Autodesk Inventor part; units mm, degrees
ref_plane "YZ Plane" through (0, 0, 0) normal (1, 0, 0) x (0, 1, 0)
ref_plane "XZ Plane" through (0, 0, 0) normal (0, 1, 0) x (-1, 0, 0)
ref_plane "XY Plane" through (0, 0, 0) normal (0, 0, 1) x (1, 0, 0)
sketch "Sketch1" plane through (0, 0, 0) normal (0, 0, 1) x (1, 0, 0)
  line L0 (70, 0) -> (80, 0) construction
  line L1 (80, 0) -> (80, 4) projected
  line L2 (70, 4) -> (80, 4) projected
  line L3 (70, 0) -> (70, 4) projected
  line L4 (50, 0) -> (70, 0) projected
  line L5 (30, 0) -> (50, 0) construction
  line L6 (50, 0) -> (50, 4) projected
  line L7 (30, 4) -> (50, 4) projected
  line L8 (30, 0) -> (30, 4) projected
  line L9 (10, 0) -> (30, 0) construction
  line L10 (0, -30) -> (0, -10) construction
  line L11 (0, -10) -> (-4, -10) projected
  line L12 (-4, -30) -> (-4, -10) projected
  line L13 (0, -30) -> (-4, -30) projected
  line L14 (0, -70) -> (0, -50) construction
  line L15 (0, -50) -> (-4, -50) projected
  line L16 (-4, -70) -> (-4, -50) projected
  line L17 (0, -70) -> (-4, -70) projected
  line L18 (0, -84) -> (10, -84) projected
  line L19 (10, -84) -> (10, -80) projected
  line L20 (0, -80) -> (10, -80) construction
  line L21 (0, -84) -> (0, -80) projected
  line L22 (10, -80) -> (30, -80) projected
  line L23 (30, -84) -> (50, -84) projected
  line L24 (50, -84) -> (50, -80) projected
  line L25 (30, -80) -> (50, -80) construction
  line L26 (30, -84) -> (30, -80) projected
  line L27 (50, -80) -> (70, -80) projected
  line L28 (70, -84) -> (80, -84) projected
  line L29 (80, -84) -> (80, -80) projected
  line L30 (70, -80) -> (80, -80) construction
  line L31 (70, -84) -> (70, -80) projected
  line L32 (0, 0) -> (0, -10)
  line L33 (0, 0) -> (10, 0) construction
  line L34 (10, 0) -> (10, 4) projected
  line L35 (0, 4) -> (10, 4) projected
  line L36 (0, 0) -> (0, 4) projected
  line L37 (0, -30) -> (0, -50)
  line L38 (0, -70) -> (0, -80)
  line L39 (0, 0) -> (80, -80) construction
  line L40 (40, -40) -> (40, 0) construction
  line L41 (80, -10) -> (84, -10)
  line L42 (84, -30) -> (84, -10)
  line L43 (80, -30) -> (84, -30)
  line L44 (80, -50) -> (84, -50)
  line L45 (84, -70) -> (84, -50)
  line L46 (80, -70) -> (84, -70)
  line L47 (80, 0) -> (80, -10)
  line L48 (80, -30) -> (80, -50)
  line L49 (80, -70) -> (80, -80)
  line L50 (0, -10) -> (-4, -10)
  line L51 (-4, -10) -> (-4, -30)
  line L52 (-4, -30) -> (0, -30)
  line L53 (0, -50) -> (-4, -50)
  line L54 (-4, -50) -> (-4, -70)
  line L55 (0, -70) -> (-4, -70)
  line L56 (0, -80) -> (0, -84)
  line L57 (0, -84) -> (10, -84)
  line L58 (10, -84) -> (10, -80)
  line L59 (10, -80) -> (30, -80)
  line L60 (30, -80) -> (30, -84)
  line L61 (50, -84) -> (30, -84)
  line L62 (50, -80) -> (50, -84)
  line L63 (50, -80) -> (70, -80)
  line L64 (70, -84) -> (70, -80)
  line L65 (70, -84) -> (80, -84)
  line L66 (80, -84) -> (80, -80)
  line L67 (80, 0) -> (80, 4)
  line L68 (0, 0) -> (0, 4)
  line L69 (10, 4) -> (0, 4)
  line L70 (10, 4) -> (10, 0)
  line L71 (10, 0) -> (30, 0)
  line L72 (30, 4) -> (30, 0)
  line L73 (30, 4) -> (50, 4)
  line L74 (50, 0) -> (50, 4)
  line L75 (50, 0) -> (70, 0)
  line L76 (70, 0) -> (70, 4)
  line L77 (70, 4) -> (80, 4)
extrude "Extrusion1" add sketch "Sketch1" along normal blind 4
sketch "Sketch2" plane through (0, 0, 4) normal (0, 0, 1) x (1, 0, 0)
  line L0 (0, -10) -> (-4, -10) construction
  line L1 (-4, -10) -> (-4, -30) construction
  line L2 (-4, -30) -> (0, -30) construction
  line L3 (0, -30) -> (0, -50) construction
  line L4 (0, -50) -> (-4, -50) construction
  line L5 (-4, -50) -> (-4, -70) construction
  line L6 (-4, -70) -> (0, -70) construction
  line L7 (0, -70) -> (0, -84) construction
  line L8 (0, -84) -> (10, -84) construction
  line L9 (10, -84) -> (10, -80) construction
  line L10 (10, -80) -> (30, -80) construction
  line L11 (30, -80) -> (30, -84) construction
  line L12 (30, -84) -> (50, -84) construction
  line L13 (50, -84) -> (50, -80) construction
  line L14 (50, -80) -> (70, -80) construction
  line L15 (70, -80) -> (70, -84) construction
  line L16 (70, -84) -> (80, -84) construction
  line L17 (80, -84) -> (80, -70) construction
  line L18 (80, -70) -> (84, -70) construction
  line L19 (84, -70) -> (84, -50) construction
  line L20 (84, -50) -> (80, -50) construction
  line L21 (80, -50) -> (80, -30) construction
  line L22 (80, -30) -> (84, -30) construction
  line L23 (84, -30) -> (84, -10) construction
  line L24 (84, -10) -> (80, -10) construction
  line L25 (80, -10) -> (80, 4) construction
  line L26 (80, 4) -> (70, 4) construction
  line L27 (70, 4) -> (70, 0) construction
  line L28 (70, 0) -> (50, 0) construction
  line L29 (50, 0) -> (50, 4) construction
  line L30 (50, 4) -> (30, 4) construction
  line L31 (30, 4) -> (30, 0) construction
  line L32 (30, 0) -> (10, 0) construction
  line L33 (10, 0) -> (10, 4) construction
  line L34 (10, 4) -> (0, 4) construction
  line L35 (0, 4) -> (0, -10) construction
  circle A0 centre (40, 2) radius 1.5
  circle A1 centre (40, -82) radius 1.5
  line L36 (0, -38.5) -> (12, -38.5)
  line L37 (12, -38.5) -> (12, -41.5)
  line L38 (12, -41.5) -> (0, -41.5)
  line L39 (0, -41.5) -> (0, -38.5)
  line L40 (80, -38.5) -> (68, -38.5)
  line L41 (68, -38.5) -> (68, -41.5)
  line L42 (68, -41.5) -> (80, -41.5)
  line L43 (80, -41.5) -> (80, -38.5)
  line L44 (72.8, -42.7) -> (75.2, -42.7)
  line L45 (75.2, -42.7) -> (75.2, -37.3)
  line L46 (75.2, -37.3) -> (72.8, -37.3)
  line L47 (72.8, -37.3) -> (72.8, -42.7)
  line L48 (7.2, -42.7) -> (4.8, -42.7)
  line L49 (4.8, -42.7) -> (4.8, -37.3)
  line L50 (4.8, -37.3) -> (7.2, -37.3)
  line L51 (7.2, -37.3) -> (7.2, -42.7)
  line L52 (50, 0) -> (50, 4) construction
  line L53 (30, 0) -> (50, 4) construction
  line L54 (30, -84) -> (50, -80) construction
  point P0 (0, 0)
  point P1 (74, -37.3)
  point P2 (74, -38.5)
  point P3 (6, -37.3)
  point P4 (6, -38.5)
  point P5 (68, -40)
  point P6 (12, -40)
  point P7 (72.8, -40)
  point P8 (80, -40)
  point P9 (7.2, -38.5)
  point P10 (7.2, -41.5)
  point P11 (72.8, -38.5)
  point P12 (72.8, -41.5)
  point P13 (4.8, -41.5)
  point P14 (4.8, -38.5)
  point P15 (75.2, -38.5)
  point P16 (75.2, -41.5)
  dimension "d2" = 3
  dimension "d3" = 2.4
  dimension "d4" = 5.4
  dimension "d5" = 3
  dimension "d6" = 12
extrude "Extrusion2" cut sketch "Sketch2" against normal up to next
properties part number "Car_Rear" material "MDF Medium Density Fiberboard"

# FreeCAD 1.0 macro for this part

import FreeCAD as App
import Part
import Sketcher


def add_polygon(sketch, points):
    """Adds a closed chain of lines whose ends are joined by coincident constraints."""
    first, n = sketch.GeometryCount, len(points)
    for a, b in zip(points, points[1:] + points[:1]):
        sketch.addGeometry(Part.LineSegment(App.Vector(*a, 0), App.Vector(*b, 0)), False)
    for i in range(n):
        sketch.addConstraint(Sketcher.Constraint("Coincident", first + i, 2, first + (i + 1) % n, 1))

doc = App.newDocument("Part")
params = doc.addObject("Spreadsheet::Sheet", "Params")
for row, (alias, value) in enumerate([
    ("sketch1_width", "10 mm"),
    ("sketch1_width2", "20 mm"),
    ("sketch1_width3", "4 mm"),
    ("sketch1_height", "14 mm"),
    ("pad1_length", "4 mm"),
    ("sketch2_diameter", "3 mm"),
    ("sketch2_height", "3 mm"),
    ("sketch2_width", "2.4 mm"),
], start=1):
    params.set(f"A{row}", alias)
    params.set(f"B{row}", "=" + value)
    params.setAlias(f"B{row}", alias)

body = doc.addObject("PartDesign::Body", "Body")

sketch1 = body.newObject("Sketcher::SketchObject", "Sketch")
sketch1.AttachmentSupport = (doc.getObject("XY_Plane"), [""])
sketch1.MapMode = "FlatFace"
add_polygon(sketch1, [(80, -10), (80, 4), (70, 4), (70, 0), (50, 0), (50, 4), (30, 4), (30, 0), (10, 0), (10, 4), (0, 4), (0, -10), (-4, -10), (-4, -30), (0, -30), (0, -50), (-4, -50), (-4, -70), (0, -70), (0, -84), (10, -84), (10, -80), (30, -80), (30, -84), (50, -84), (50, -80), (70, -80), (70, -84), (80, -84), (80, -70), (84, -70), (84, -50), (80, -50), (80, -30), (84, -30), (84, -10)])
sketch1.addConstraint(Sketcher.Constraint("Vertical", 0))
sketch1.addConstraint(Sketcher.Constraint("Horizontal", 1))
sketch1.addConstraint(Sketcher.Constraint("Vertical", 2))
sketch1.addConstraint(Sketcher.Constraint("Horizontal", 3))
sketch1.addConstraint(Sketcher.Constraint("Vertical", 4))
sketch1.addConstraint(Sketcher.Constraint("Horizontal", 5))
sketch1.addConstraint(Sketcher.Constraint("Vertical", 6))
sketch1.addConstraint(Sketcher.Constraint("Horizontal", 7))
sketch1.addConstraint(Sketcher.Constraint("Vertical", 8))
sketch1.addConstraint(Sketcher.Constraint("Horizontal", 9))
sketch1.addConstraint(Sketcher.Constraint("Vertical", 10))
sketch1.addConstraint(Sketcher.Constraint("Horizontal", 11))
sketch1.addConstraint(Sketcher.Constraint("Vertical", 12))
sketch1.addConstraint(Sketcher.Constraint("Horizontal", 13))
sketch1.addConstraint(Sketcher.Constraint("Vertical", 14))
sketch1.addConstraint(Sketcher.Constraint("Horizontal", 15))
sketch1.addConstraint(Sketcher.Constraint("Vertical", 16))
sketch1.addConstraint(Sketcher.Constraint("Horizontal", 17))
sketch1.addConstraint(Sketcher.Constraint("Vertical", 18))
sketch1.addConstraint(Sketcher.Constraint("Horizontal", 19))
sketch1.addConstraint(Sketcher.Constraint("Vertical", 20))
sketch1.addConstraint(Sketcher.Constraint("Horizontal", 21))
sketch1.addConstraint(Sketcher.Constraint("Vertical", 22))
sketch1.addConstraint(Sketcher.Constraint("Horizontal", 23))
sketch1.addConstraint(Sketcher.Constraint("Vertical", 24))
sketch1.addConstraint(Sketcher.Constraint("Horizontal", 25))
sketch1.addConstraint(Sketcher.Constraint("Vertical", 26))
sketch1.addConstraint(Sketcher.Constraint("Horizontal", 27))
sketch1.addConstraint(Sketcher.Constraint("Vertical", 28))
sketch1.addConstraint(Sketcher.Constraint("Horizontal", 29))
sketch1.addConstraint(Sketcher.Constraint("Vertical", 30))
sketch1.addConstraint(Sketcher.Constraint("Horizontal", 31))
sketch1.addConstraint(Sketcher.Constraint("Vertical", 32))
sketch1.addConstraint(Sketcher.Constraint("Horizontal", 33))
sketch1.addConstraint(Sketcher.Constraint("Vertical", 34))
sketch1.addConstraint(Sketcher.Constraint("Horizontal", 35))
sketch1.addConstraint(Sketcher.Constraint("PointOnObject", 2, 2, -1))
sketch1.addConstraint(Sketcher.Constraint("PointOnObject", 6, 2, -1))
sketch1.addConstraint(Sketcher.Constraint("PointOnObject", 9, 2, -2))
sketch1.addConstraint(Sketcher.Constraint("PointOnObject", 13, 2, -2))
sketch1.addConstraint(Sketcher.Constraint("PointOnObject", 17, 2, -2))
sketch1.addConstraint(Sketcher.Constraint("Horizontal", 1, 2, 4, 2))
sketch1.addConstraint(Sketcher.Constraint("Horizontal", 5, 2, 8, 2))
sketch1.addConstraint(Sketcher.Constraint("Horizontal", 19, 2, 22, 2))
sketch1.addConstraint(Sketcher.Constraint("Horizontal", 21, 2, 24, 2))
sketch1.addConstraint(Sketcher.Constraint("Horizontal", 23, 2, 26, 2))
sketch1.addConstraint(Sketcher.Constraint("Horizontal", 17, 2, 28, 2))
sketch1.addConstraint(Sketcher.Constraint("Horizontal", 15, 2, 30, 2))
sketch1.addConstraint(Sketcher.Constraint("Horizontal", 13, 2, 32, 2))
sketch1.addConstraint(Sketcher.Constraint("Horizontal", 11, 2, 34, 2))
sketch1.addConstraint(Sketcher.Constraint("Vertical", 12, 2, 15, 2))
sketch1.addConstraint(Sketcher.Constraint("Vertical", 8, 2, 19, 2))
sketch1.addConstraint(Sketcher.Constraint("Vertical", 6, 2, 21, 2))
sketch1.addConstraint(Sketcher.Constraint("Vertical", 4, 2, 23, 2))
sketch1.addConstraint(Sketcher.Constraint("Vertical", 2, 2, 25, 2))
sketch1.addConstraint(Sketcher.Constraint("Vertical", 0, 2, 27, 2))
sketch1.addConstraint(Sketcher.Constraint("Vertical", 28, 2, 31, 2))
sketch1.addConstraint(Sketcher.Constraint("Vertical", 30, 2, 33, 2))
sketch1.addConstraint(Sketcher.Constraint("Equal", 3, 5))
sketch1.addConstraint(Sketcher.Constraint("Equal", 5, 7))
sketch1.addConstraint(Sketcher.Constraint("Equal", 1, 9))
sketch1.addConstraint(Sketcher.Constraint("Equal", 17, 29))
sketch1.addConstraint(Sketcher.Constraint("Equal", 35, 2))
sketch1.addConstraint(Sketcher.Constraint("Equal", 25, 12))
sketch1.addConstraint(Sketcher.Constraint("Equal", 12, 14))
sketch1.addConstraint(Sketcher.Constraint("Equal", 14, 16))
sketch1.addConstraint(Sketcher.Constraint("Equal", 10, 18))
sketch1.addConstraint(Sketcher.Constraint("Equal", 8, 20))
sketch1.addConstraint(Sketcher.Constraint("DistanceX", 1, 2, 1, 1, 10.0))
sketch1.addConstraint(Sketcher.Constraint("DistanceX", 3, 2, 3, 1, 20.0))
sketch1.addConstraint(Sketcher.Constraint("DistanceX", 11, 2, 11, 1, 4.0))
sketch1.addConstraint(Sketcher.Constraint("DistanceY", 0, 1, 0, 2, 14.0))
sketch1.setExpression("Constraints[104]", "Params.sketch1_width")
sketch1.setExpression("Constraints[105]", "Params.sketch1_width2")
sketch1.setExpression("Constraints[106]", "Params.sketch1_width3")
sketch1.setExpression("Constraints[107]", "Params.sketch1_height")
pad1 = body.newObject("PartDesign::Pad", "Pad")
pad1.Profile = sketch1
pad1.setExpression("Length", "Params.pad1_length")

sketch2 = body.newObject("Sketcher::SketchObject", "Sketch001")
sketch2.AttachmentSupport = (doc.getObject("XY_Plane"), [""])
sketch2.MapMode = "FlatFace"
sketch2.AttachmentOffset = App.Placement(App.Vector(0, 0, 4), App.Rotation())
sketch2.addGeometry(Part.Circle(App.Vector(40, 2, 0), App.Vector(0, 0, 1), 1.5), False)
sketch2.addGeometry(Part.Circle(App.Vector(40, -82, 0), App.Vector(0, 0, 1), 1.5), False)
add_polygon(sketch2, [(4.8, -38.5), (0, -38.5), (0, -41.5), (4.8, -41.5), (4.8, -42.7), (7.2, -42.7), (7.2, -41.5), (12, -41.5), (12, -38.5), (7.2, -38.5), (7.2, -37.3), (4.8, -37.3)])
add_polygon(sketch2, [(80, -41.5), (80, -38.5), (75.2, -38.5), (75.2, -37.3), (72.8, -37.3), (72.8, -38.5), (68, -38.5), (68, -41.5), (72.8, -41.5), (72.8, -42.7), (75.2, -42.7), (75.2, -41.5)])
sketch2.addConstraint(Sketcher.Constraint("Horizontal", 2))
sketch2.addConstraint(Sketcher.Constraint("Vertical", 3))
sketch2.addConstraint(Sketcher.Constraint("Horizontal", 4))
sketch2.addConstraint(Sketcher.Constraint("Vertical", 5))
sketch2.addConstraint(Sketcher.Constraint("Horizontal", 6))
sketch2.addConstraint(Sketcher.Constraint("Vertical", 7))
sketch2.addConstraint(Sketcher.Constraint("Horizontal", 8))
sketch2.addConstraint(Sketcher.Constraint("Vertical", 9))
sketch2.addConstraint(Sketcher.Constraint("Horizontal", 10))
sketch2.addConstraint(Sketcher.Constraint("Vertical", 11))
sketch2.addConstraint(Sketcher.Constraint("Horizontal", 12))
sketch2.addConstraint(Sketcher.Constraint("Vertical", 13))
sketch2.addConstraint(Sketcher.Constraint("Vertical", 14))
sketch2.addConstraint(Sketcher.Constraint("Horizontal", 15))
sketch2.addConstraint(Sketcher.Constraint("Vertical", 16))
sketch2.addConstraint(Sketcher.Constraint("Horizontal", 17))
sketch2.addConstraint(Sketcher.Constraint("Vertical", 18))
sketch2.addConstraint(Sketcher.Constraint("Horizontal", 19))
sketch2.addConstraint(Sketcher.Constraint("Vertical", 20))
sketch2.addConstraint(Sketcher.Constraint("Horizontal", 21))
sketch2.addConstraint(Sketcher.Constraint("Vertical", 22))
sketch2.addConstraint(Sketcher.Constraint("Horizontal", 23))
sketch2.addConstraint(Sketcher.Constraint("Vertical", 24))
sketch2.addConstraint(Sketcher.Constraint("Horizontal", 25))
sketch2.addConstraint(Sketcher.Constraint("Equal", 0, 1))
sketch2.addConstraint(Sketcher.Constraint("PointOnObject", 2, 2, -2))
sketch2.addConstraint(Sketcher.Constraint("Horizontal", 4, 2, 7, 2))
sketch2.addConstraint(Sketcher.Constraint("Horizontal", 2, 2, 9, 2))
sketch2.addConstraint(Sketcher.Constraint("Horizontal", 13, 2, 14, 2))
sketch2.addConstraint(Sketcher.Constraint("Horizontal", 12, 2, 16, 2))
sketch2.addConstraint(Sketcher.Constraint("Horizontal", 15, 2, 18, 2))
sketch2.addConstraint(Sketcher.Constraint("Horizontal", 8, 2, 20, 2))
sketch2.addConstraint(Sketcher.Constraint("Horizontal", 6, 2, 22, 2))
sketch2.addConstraint(Sketcher.Constraint("Horizontal", 21, 2, 24, 2))
sketch2.addConstraint(Sketcher.Constraint("Vertical", 0, 3, 1, 3))
sketch2.addConstraint(Sketcher.Constraint("Vertical", 7, 2, 10, 2))
sketch2.addConstraint(Sketcher.Constraint("Vertical", 5, 2, 12, 2))
sketch2.addConstraint(Sketcher.Constraint("Vertical", 18, 2, 21, 2))
sketch2.addConstraint(Sketcher.Constraint("Vertical", 16, 2, 23, 2))
sketch2.addConstraint(Sketcher.Constraint("Equal", 4, 8))
sketch2.addConstraint(Sketcher.Constraint("Equal", 10, 15))
sketch2.addConstraint(Sketcher.Constraint("Equal", 12, 17))
sketch2.addConstraint(Sketcher.Constraint("Equal", 15, 19))
sketch2.addConstraint(Sketcher.Constraint("Equal", 7, 11))
sketch2.addConstraint(Sketcher.Constraint("Diameter", 0, 3.0))
sketch2.addConstraint(Sketcher.Constraint("DistanceY", 3, 2, 3, 1, 3.0))
sketch2.addConstraint(Sketcher.Constraint("DistanceX", 6, 1, 6, 2, 2.4))
sketch2.addConstraint(Sketcher.Constraint("DistanceX", -1, 1, 8, 2, 12.0))
sketch2.addConstraint(Sketcher.Constraint("DistanceY", 6, 2, 11, 2, 5.4))
sketch2.addConstraint(Sketcher.Constraint("DistanceX", -1, 1, 0, 3, 40.0))
sketch2.addConstraint(Sketcher.Constraint("DistanceY", -1, 1, 0, 3, 2.0))
sketch2.addConstraint(Sketcher.Constraint("DistanceY", 1, 3, -1, 1, 82.0))
sketch2.addConstraint(Sketcher.Constraint("DistanceX", -1, 1, 14, 2, 80.0))
sketch2.addConstraint(Sketcher.Constraint("DistanceY", 2, 2, -1, 1, 38.5))
sketch2.setExpression("Constraints[68]", "Params.sketch2_diameter")
sketch2.setExpression("Constraints[69]", "Params.sketch2_height")
sketch2.setExpression("Constraints[70]", "Params.sketch2_width")
pocket1 = body.newObject("PartDesign::Pocket", "Pocket")
pocket1.Profile = sketch2
pocket1.Type = "UpToFirst"

doc.recompute()
